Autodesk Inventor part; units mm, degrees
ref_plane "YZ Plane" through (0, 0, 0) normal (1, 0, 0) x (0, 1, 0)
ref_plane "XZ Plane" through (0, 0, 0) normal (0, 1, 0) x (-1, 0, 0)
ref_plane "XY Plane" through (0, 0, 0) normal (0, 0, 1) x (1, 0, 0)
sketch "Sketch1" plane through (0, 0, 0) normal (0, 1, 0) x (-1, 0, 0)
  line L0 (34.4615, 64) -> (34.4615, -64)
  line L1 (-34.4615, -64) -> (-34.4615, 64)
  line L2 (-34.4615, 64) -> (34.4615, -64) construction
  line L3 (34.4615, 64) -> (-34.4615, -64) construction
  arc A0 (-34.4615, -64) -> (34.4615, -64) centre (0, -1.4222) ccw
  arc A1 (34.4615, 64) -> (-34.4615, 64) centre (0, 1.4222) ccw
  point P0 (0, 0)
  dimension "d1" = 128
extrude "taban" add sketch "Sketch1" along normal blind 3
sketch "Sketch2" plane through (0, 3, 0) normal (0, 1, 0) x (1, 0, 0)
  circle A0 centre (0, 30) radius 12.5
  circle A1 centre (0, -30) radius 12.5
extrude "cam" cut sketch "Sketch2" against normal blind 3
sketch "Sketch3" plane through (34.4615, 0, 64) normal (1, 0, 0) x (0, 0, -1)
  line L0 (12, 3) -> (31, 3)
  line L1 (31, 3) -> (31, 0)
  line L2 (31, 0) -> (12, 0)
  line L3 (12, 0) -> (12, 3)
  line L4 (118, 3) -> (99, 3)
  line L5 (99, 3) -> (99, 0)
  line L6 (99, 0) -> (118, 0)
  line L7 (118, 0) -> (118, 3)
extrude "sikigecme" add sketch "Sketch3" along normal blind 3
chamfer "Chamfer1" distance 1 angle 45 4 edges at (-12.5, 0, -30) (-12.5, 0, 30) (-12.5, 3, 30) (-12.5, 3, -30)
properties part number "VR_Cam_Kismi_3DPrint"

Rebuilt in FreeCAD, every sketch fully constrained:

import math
import FreeCAD as App
import Part
import Sketcher

V = App.Vector
Q = App.Units.Quantity


def edges_at(feature, points):
    """Names of the edges that pass closest to the given points."""
    edges = feature.Shape.Edges
    near = lambda p: min(range(len(edges)), key=lambda i: edges[i].distToShape(Part.Vertex(*p))[0])
    return sorted({f"Edge{near(p) + 1}" for p in points})


def add_polygon(sketch, points):
    """Adds a closed chain of lines whose ends are joined by coincident constraints."""
    first, n = sketch.GeometryCount, len(points)
    for a, b in zip(points, points[1:] + points[:1]):
        sketch.addGeometry(Part.LineSegment(App.Vector(*a, 0), App.Vector(*b, 0)), False)
    for i in range(n):
        sketch.addConstraint(Sketcher.Constraint("Coincident", first + i, 2, first + (i + 1) % n, 1))

doc = App.newDocument("Part")
body = doc.addObject("PartDesign::Body", "Body")

# Sketch on XZ plane
sketch1 = body.newObject("Sketcher::SketchObject", "Sketch")
sketch1.AttachmentSupport = (doc.getObject("XZ_Plane"), [""])
sketch1.MapMode = "FlatFace"
sketch1.addGeometry([
    Part.LineSegment(V(-34.4615, -64, 0), V(-34.4615, 64, 0)),
    Part.ArcOfCircle(Part.Circle(V(0, 1.4222, 0), V(0, 0, 1), 71.439317), math.radians(61.158489), math.radians(118.841511)),
    Part.LineSegment(V(34.4615, 64, 0), V(34.4615, -64, 0)),
    Part.ArcOfCircle(Part.Circle(V(0, -1.4222, 0), V(0, 0, 1), 71.439317), math.radians(-118.841511), math.radians(-61.158489)),
], False)
sketch1.addConstraint([
    Sketcher.Constraint("Coincident", 0, 2, 1, 2),
    Sketcher.Constraint("Coincident", 1, 1, 2, 1),
    Sketcher.Constraint("Coincident", 2, 2, 3, 2),
    Sketcher.Constraint("Coincident", 3, 1, 0, 1),
    Sketcher.Constraint("Vertical", 0),
    Sketcher.Constraint("Vertical", 2),
    Sketcher.Constraint("Equal", 1, 3),
    Sketcher.Constraint("Symmetric", 1, 3, 3, 3, -1, 1),
    Sketcher.Constraint("Symmetric", 0, 2, 1, 1, -2),
    Sketcher.Constraint("DistanceY", 0, 1, 0, 2, Q("128 mm")),
    Sketcher.Constraint("Radius", 1, Q("71.4393 mm")),
    Sketcher.Constraint("DistanceX", 0, 2, 1, 1, Q("68.923 mm")),
])
pad1 = body.newObject("PartDesign::Pad", "Pad")
pad1.Profile = sketch1
pad1.Length = 3
pad1.Reversed = True

# Sketch on XZ plane
sketch2 = body.newObject("Sketcher::SketchObject", "Sketch001")
sketch2.AttachmentSupport = (doc.getObject("XZ_Plane"), [""])
sketch2.MapMode = "FlatFace"
sketch2.AttachmentOffset = App.Placement(V(0, 0, -3), App.Rotation())
sketch2.addGeometry([
    Part.Circle(V(0, -30, 0), V(0, 0, 1), 12.5),
    Part.Circle(V(0, 30, 0), V(0, 0, 1), 12.5),
], False)
sketch2.addConstraint([
    Sketcher.Constraint("Equal", 0, 1),
    Sketcher.Constraint("Symmetric", 0, 3, 1, 3, -1, 1),
    Sketcher.Constraint("PointOnObject", 0, 3, -2),
    Sketcher.Constraint("Diameter", 0, Q("25 mm")),
    Sketcher.Constraint("DistanceY", 0, 3, -1, 1, Q("30 mm")),
])
pocket1 = body.newObject("PartDesign::Pocket", "Pocket")
pocket1.Profile = sketch2
pocket1.Length = 3
pocket1.Reversed = True

# Sketch on YZ plane
sketch3 = body.newObject("Sketcher::SketchObject", "Sketch002")
sketch3.AttachmentSupport = (doc.getObject("YZ_Plane"), [""])
sketch3.MapMode = "FlatFace"
sketch3.AttachmentOffset = App.Placement(V(0, 0, 34.4615), App.Rotation())
add_polygon(sketch3, [(3, 33), (3, 52), (0, 52), (0, 33)])  # lines 0-3
add_polygon(sketch3, [(0, -54), (3, -54), (3, -35), (0, -35)])  # lines 4-7
sketch3.addConstraint([
    Sketcher.Constraint("Vertical", 0),
    Sketcher.Constraint("Horizontal", 1),
    Sketcher.Constraint("Vertical", 2),
    Sketcher.Constraint("Horizontal", 3),
    Sketcher.Constraint("Horizontal", 4),
    Sketcher.Constraint("Vertical", 5),
    Sketcher.Constraint("Horizontal", 6),
    Sketcher.Constraint("Vertical", 7),
    Sketcher.Constraint("PointOnObject", 1, 2, -2),
    Sketcher.Constraint("PointOnObject", 6, 2, -2),
    Sketcher.Constraint("Vertical", 3, 2, 4, 2),
    Sketcher.Constraint("Equal", 2, 5),
    Sketcher.Constraint("DistanceX", 1, 2, 1, 1, Q("3 mm")),
    Sketcher.Constraint("DistanceY", 0, 1, 0, 2, Q("19 mm")),
    Sketcher.Constraint("DistanceY", -1, 1, 0, 2, Q("52 mm")),
    Sketcher.Constraint("DistanceY", 4, 2, -1, 1, Q("54 mm")),
])
pad2 = body.newObject("PartDesign::Pad", "Pad001")
pad2.Profile = sketch3
pad2.Length = 3
doc.recompute()

chamfer = body.newObject("PartDesign::Chamfer", "Chamfer")
chamfer.Base = (pad2, edges_at(pad2, [
    (-12.5, 0, -30),
    (-12.5, 0, 30),
    (-12.5, 3, 30),
    (-12.5, 3, -30),
]))
chamfer.Size = 1

doc.recompute()
